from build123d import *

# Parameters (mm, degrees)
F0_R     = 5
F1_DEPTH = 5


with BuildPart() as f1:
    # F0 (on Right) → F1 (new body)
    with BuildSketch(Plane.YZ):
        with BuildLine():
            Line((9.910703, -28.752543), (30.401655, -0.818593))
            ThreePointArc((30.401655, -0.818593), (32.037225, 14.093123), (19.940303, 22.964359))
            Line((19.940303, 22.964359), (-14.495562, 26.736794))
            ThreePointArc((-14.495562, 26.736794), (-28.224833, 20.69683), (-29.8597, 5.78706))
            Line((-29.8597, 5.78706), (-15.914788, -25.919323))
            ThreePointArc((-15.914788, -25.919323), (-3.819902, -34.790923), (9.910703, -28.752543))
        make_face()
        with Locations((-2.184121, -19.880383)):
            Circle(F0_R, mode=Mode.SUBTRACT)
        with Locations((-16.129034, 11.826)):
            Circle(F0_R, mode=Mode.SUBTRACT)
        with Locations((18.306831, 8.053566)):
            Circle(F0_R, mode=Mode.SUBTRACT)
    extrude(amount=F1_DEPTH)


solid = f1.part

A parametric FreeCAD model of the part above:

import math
import FreeCAD as App
import Part
import Sketcher
from FreeCAD import Vector

doc = App.newDocument("Part")
body = doc.addObject("PartDesign::Body", "Body")

# Sketch on YZ plane
sketch1 = body.newObject("Sketcher::SketchObject", "Sketch")
sketch1.AttachmentSupport = (doc.getObject("YZ_Plane"), [""])
sketch1.MapMode = "FlatFace"
sketch1.addGeometry([
    Part.LineSegment(Vector(9.910703, -28.752543, 0), Vector(30.401655, -0.818593, 0)),  # 0
    Part.ArcOfCircle(Part.Circle(Vector(18.30683, 8.053566, 0), Vector(0, 0, 1), 14.999999), math.radians(-36.261911), math.radians(83.748196)),  # 1
    Part.LineSegment(Vector(19.940303, 22.964359, 0), Vector(-14.495562, 26.736794, 0)),  # 2
    Part.ArcOfCircle(Part.Circle(Vector(-16.129033, 11.826, 0), Vector(0, 0, 1), 15.000001), math.radians(83.748203), math.radians(203.740565)),  # 3
    Part.LineSegment(Vector(-29.8597, 5.78706, 0), Vector(-15.914788, -25.919323, 0)),  # 4
    Part.ArcOfCircle(Part.Circle(Vector(-2.184121, -19.880382, 0), Vector(0, 0, 1), 15.000001), math.radians(-156.259428), math.radians(-36.261919)),  # 5
    Part.Circle(Vector(-2.184121, -19.880383, 0), Vector(0, 0, 1), 5),  # 6
    Part.Circle(Vector(-16.129034, 11.826, 0), Vector(0, 0, 1), 5),  # 7
    Part.Circle(Vector(18.306831, 8.053566, 0), Vector(0, 0, 1), 5),  # 8
], False)
sketch1.addConstraint([
    Sketcher.Constraint("Tangent", 0, 2, 1, 1),
    Sketcher.Constraint("Tangent", 1, 2, 2, 1),
    Sketcher.Constraint("Tangent", 2, 2, 3, 1),
    Sketcher.Constraint("Tangent", 3, 2, 4, 1),
    Sketcher.Constraint("Tangent", 4, 2, 5, 1),
    Sketcher.Constraint("Tangent", 5, 2, 0, 1),
    Sketcher.Constraint("Coincident", 6, 3, 5, 3),
    Sketcher.Constraint("Coincident", 7, 3, 3, 3),
    Sketcher.Constraint("Coincident", 8, 3, 1, 3),
    Sketcher.Constraint("Equal", 1, 3),
    Sketcher.Constraint("Equal", 3, 5),
    Sketcher.Constraint("Equal", 6, 7),
    Sketcher.Constraint("Equal", 7, 8),
    Sketcher.Constraint("Diameter", 6, 10.0),
    Sketcher.Constraint("Radius", 1, 14.999999),
    Sketcher.Constraint("DistanceY", -1, 1, 3, 3, 11.826),
    Sketcher.Constraint("DistanceX", 3, 2, -1, 1, 29.8597),
    Sketcher.Constraint("Distance", 0, 34.643682),
    Sketcher.Constraint("DistanceX", -1, 1, 1, 3, 18.30683),
    Sketcher.Constraint("DistanceX", 5, 3, -1, 1, 2.184121),
    Sketcher.Constraint("DistanceY", 5, 3, -1, 1, 19.880382),
])
pad1 = body.newObject("PartDesign::Pad", "Pad")
pad1.Profile = sketch1
pad1.Length = 5

doc.recompute()
